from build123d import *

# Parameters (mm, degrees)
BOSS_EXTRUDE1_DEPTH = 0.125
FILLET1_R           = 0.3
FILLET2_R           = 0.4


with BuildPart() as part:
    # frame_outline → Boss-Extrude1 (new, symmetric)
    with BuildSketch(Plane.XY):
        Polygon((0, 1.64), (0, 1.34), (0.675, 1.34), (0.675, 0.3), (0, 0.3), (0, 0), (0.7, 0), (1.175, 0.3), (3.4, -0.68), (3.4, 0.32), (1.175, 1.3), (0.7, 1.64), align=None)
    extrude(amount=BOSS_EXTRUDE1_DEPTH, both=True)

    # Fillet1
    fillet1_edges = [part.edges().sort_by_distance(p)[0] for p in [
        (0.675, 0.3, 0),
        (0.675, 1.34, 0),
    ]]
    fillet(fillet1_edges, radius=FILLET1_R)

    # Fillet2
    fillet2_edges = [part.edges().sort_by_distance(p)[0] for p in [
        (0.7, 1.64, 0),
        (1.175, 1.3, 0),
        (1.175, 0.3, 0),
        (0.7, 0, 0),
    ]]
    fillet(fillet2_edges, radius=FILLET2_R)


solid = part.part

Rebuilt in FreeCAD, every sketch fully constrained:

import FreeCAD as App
import Part
import Sketcher
from FreeCAD import Vector


def edges_at(feature, points):
    """Names of the edges that pass closest to the given points."""
    edges = feature.Shape.Edges
    near = lambda p: min(range(len(edges)), key=lambda i: edges[i].distToShape(Part.Vertex(*p))[0])
    return sorted({f"Edge{near(p) + 1}" for p in points})

doc = App.newDocument("Part")
body = doc.addObject("PartDesign::Body", "Body")

# Sketch on XY plane
sketch1 = body.newObject("Sketcher::SketchObject", "Sketch")
sketch1.AttachmentSupport = (doc.getObject("XY_Plane"), [""])
sketch1.MapMode = "FlatFace"
sketch1.addGeometry(Part.LineSegment(Vector(0, 1.64, 0), Vector(0, 1.34, 0)), False)
sketch1.addGeometry(Part.LineSegment(Vector(0, 1.34, 0), Vector(0.68, 1.34, 0)), False)
sketch1.addGeometry(Part.LineSegment(Vector(0.68, 1.34, 0), Vector(0.68, 0.3, 0)), False)
sketch1.addGeometry(Part.LineSegment(Vector(0.68, 0.3, 0), Vector(0, 0.3, 0)), False)
sketch1.addGeometry(Part.LineSegment(Vector(0, 0.3, 0), Vector(0, 0, 0)), False)
sketch1.addGeometry(Part.LineSegment(Vector(0, 0, 0), Vector(0.7, 0, 0)), False)
sketch1.addGeometry(Part.LineSegment(Vector(0.7, 0, 0), Vector(1.18, 0.3, 0)), False)
sketch1.addGeometry(Part.LineSegment(Vector(1.18, 0.3, 0), Vector(3.4, -0.68, 0)), False)
sketch1.addGeometry(Part.LineSegment(Vector(3.4, -0.68, 0), Vector(3.4, 0.32, 0)), False)
sketch1.addGeometry(Part.LineSegment(Vector(3.4, 0.32, 0), Vector(1.18, 1.3, 0)), False)
sketch1.addGeometry(Part.LineSegment(Vector(1.18, 1.3, 0), Vector(0.7, 1.64, 0)), False)
sketch1.addGeometry(Part.LineSegment(Vector(0.7, 1.64, 0), Vector(0, 1.64, 0)), False)
sketch1.addConstraint(Sketcher.Constraint("Coincident", 0, 2, 1, 1))
sketch1.addConstraint(Sketcher.Constraint("Coincident", 1, 2, 2, 1))
sketch1.addConstraint(Sketcher.Constraint("Coincident", 2, 2, 3, 1))
sketch1.addConstraint(Sketcher.Constraint("Coincident", 3, 2, 4, 1))
sketch1.addConstraint(Sketcher.Constraint("Coincident", 4, 2, 5, 1))
sketch1.addConstraint(Sketcher.Constraint("Coincident", 5, 2, 6, 1))
sketch1.addConstraint(Sketcher.Constraint("Coincident", 6, 2, 7, 1))
sketch1.addConstraint(Sketcher.Constraint("Coincident", 7, 2, 8, 1))
sketch1.addConstraint(Sketcher.Constraint("Coincident", 8, 2, 9, 1))
sketch1.addConstraint(Sketcher.Constraint("Coincident", 9, 2, 10, 1))
sketch1.addConstraint(Sketcher.Constraint("Coincident", 10, 2, 11, 1))
sketch1.addConstraint(Sketcher.Constraint("Coincident", 11, 2, 0, 1))
sketch1.addConstraint(Sketcher.Constraint("Vertical", 0))
sketch1.addConstraint(Sketcher.Constraint("Horizontal", 1))
sketch1.addConstraint(Sketcher.Constraint("Vertical", 2))
sketch1.addConstraint(Sketcher.Constraint("Horizontal", 3))
sketch1.addConstraint(Sketcher.Constraint("Vertical", 4))
sketch1.addConstraint(Sketcher.Constraint("Horizontal", 5))
sketch1.addConstraint(Sketcher.Constraint("Vertical", 8))
sketch1.addConstraint(Sketcher.Constraint("Horizontal", 11))
sketch1.addConstraint(Sketcher.Constraint("Coincident", 4, 2, -1, 1))
sketch1.addConstraint(Sketcher.Constraint("PointOnObject", 0, 2, -2))
sketch1.addConstraint(Sketcher.Constraint("Parallel", 7, 9))
sketch1.addConstraint(Sketcher.Constraint("Horizontal", 3, 2, 6, 2))
sketch1.addConstraint(Sketcher.Constraint("Vertical", 6, 2, 9, 2))
sketch1.addConstraint(Sketcher.Constraint("Vertical", 5, 2, 10, 2))
sketch1.addConstraint(Sketcher.Constraint("Equal", 0, 4))
sketch1.addConstraint(Sketcher.Constraint("DistanceY", 8, 1, 8, 2, 1.0))
sketch1.addConstraint(Sketcher.Constraint("DistanceX", 5, 1, 5, 2, 0.7))
sketch1.addConstraint(Sketcher.Constraint("DistanceY", 0, 2, 0, 1, 0.3))
sketch1.addConstraint(Sketcher.Constraint("DistanceY", 2, 2, 2, 1, 1.04))
sketch1.addConstraint(Sketcher.Constraint("DistanceX", -1, 1, 7, 2, 3.4))
sketch1.addConstraint(Sketcher.Constraint("DistanceX", 2, 2, 6, 2, 0.5))
sketch1.addConstraint(Sketcher.Constraint("DistanceX", 1, 1, 1, 2, 0.675))
sketch1.addConstraint(Sketcher.Constraint("DistanceY", 7, 2, -1, 1, 0.68))
pad1 = body.newObject("PartDesign::Pad", "Pad")
pad1.Profile = sketch1
pad1.Length = 0.25
pad1.Midplane = True
doc.recompute()

fillet = body.newObject("PartDesign::Fillet", "Fillet")
fillet.Base = (pad1, edges_at(pad1, [(0.675, 0.3, 0), (0.675, 1.34, 0)]))
fillet.Radius = 0.3
doc.recompute()

fillet2 = body.newObject("PartDesign::Fillet", "Fillet001")
fillet2.Base = (fillet, edges_at(fillet, [
    (0.7, 1.64, 0),
    (1.175, 1.3, 0),
    (1.175, 0.3, 0),
    (0.7, 0, 0),
]))
fillet2.Radius = 0.4

doc.recompute()
